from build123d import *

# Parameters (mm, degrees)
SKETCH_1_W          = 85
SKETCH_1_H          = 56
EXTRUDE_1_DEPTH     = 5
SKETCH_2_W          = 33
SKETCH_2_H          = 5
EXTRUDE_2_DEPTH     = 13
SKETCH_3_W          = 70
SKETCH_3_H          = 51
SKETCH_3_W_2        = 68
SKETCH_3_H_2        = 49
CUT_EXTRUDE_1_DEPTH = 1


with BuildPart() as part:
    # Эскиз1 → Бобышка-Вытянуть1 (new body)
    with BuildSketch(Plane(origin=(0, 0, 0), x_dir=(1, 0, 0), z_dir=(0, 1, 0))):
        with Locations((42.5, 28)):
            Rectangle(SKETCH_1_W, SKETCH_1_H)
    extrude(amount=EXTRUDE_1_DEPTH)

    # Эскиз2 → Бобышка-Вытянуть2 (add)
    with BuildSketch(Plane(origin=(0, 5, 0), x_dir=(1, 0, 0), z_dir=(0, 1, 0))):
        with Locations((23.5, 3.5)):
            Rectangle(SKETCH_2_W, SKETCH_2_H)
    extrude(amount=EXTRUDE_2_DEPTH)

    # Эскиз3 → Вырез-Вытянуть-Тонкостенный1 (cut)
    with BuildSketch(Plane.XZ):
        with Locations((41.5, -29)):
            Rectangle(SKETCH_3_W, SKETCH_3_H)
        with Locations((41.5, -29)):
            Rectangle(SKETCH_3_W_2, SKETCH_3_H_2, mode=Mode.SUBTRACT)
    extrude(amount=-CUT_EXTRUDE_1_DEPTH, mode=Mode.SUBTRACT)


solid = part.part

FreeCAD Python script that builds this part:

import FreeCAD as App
import Part
import Sketcher
Q = App.Units.Quantity

doc = App.newDocument("Part")
body = doc.addObject("PartDesign::Body", "Body")

# Sketch on XZ plane
sketch1 = doc.addObject("Sketcher::SketchObject", "Sketch")
body.addObject(sketch1)
sketch1.AttachmentSupport = (doc.XZ_Plane, [""])
sketch1.MapMode = "FlatFace"
sketch1.addGeometry([
    Part.LineSegment(App.Vector(0, -56, 0), App.Vector(0, 0, 0)),
    Part.LineSegment(App.Vector(0, 0, 0), App.Vector(85, 0, 0)),
    Part.LineSegment(App.Vector(85, 0, 0), App.Vector(85, -56, 0)),
    Part.LineSegment(App.Vector(85, -56, 0), App.Vector(0, -56, 0)),
], False)
sketch1.addConstraint([
    Sketcher.Constraint("Coincident", 0, 2, 1, 1),
    Sketcher.Constraint("Coincident", 1, 2, 2, 1),
    Sketcher.Constraint("Coincident", 2, 2, 3, 1),
    Sketcher.Constraint("Coincident", 3, 2, 0, 1),
    Sketcher.Constraint("Vertical", 0),
    Sketcher.Constraint("Horizontal", 1),
    Sketcher.Constraint("Vertical", 2),
    Sketcher.Constraint("Horizontal", 3),
    Sketcher.Constraint("Coincident", 0, 2, -1, 1),
    Sketcher.Constraint("DistanceX", 1, 1, 1, 2, Q("85 mm")),
    Sketcher.Constraint("DistanceY", 0, 1, 0, 2, Q("56 mm")),
])
pad1 = doc.addObject("PartDesign::Pad", "Pad")
body.addObject(pad1)
pad1.Profile = sketch1
pad1.Length = 5
pad1.Reversed = True

# Sketch on XZ plane
sketch2 = doc.addObject("Sketcher::SketchObject", "Sketch001")
body.addObject(sketch2)
sketch2.AttachmentSupport = (doc.XZ_Plane, [""])
sketch2.MapMode = "FlatFace"
sketch2.AttachmentOffset = App.Placement(App.Vector(0, 0, -5), App.Rotation())
sketch2.addGeometry([
    Part.LineSegment(App.Vector(7, -6, 0), App.Vector(7, -1, 0)),
    Part.LineSegment(App.Vector(7, -1, 0), App.Vector(40, -1, 0)),
    Part.LineSegment(App.Vector(40, -1, 0), App.Vector(40, -6, 0)),
    Part.LineSegment(App.Vector(40, -6, 0), App.Vector(7, -6, 0)),
], False)
sketch2.addConstraint([
    Sketcher.Constraint("Coincident", 0, 2, 1, 1),
    Sketcher.Constraint("Coincident", 1, 2, 2, 1),
    Sketcher.Constraint("Coincident", 2, 2, 3, 1),
    Sketcher.Constraint("Coincident", 3, 2, 0, 1),
    Sketcher.Constraint("Vertical", 0),
    Sketcher.Constraint("Horizontal", 1),
    Sketcher.Constraint("Vertical", 2),
    Sketcher.Constraint("Horizontal", 3),
    Sketcher.Constraint("DistanceX", 1, 1, 1, 2, Q("33 mm")),
    Sketcher.Constraint("DistanceY", 0, 1, 0, 2, Q("5 mm")),
    Sketcher.Constraint("DistanceX", -1, 1, 0, 2, Q("7 mm")),
    Sketcher.Constraint("DistanceY", 0, 2, -1, 1, Q("1 mm")),
])
pad2 = doc.addObject("PartDesign::Pad", "Pad001")
body.addObject(pad2)
pad2.Profile = sketch2
pad2.Length = 13
pad2.Reversed = True

# Sketch on XZ plane
sketch3 = doc.addObject("Sketcher::SketchObject", "Sketch002")
body.addObject(sketch3)
sketch3.AttachmentSupport = (doc.XZ_Plane, [""])
sketch3.MapMode = "FlatFace"
sketch3.addGeometry([
    Part.LineSegment(App.Vector(6, -4, 0), App.Vector(6, -54, 0)),  # 0
    Part.LineSegment(App.Vector(6, -54, 0), App.Vector(76, -54, 0)),  # 1
    Part.LineSegment(App.Vector(76, -54, 0), App.Vector(76, -4, 0)),  # 2
    Part.LineSegment(App.Vector(76, -4, 0), App.Vector(6, -4, 0)),  # 3
    Part.LineSegment(App.Vector(76, -54, 0), App.Vector(8, -54, 0)),  # 4
    Part.LineSegment(App.Vector(8, -54, 0), App.Vector(8, -4, 0)),  # 5
    Part.LineSegment(App.Vector(8, -4, 0), App.Vector(76, -4, 0)),  # 6
    Part.LineSegment(App.Vector(76, -4, 0), App.Vector(76, -54, 0)),  # 7
], False)
sketch3.addConstraint([
    Sketcher.Constraint("Coincident", 0, 2, 1, 1),
    Sketcher.Constraint("Coincident", 1, 2, 2, 1),
    Sketcher.Constraint("Coincident", 2, 2, 3, 1),
    Sketcher.Constraint("Coincident", 3, 2, 0, 1),
    Sketcher.Constraint("Coincident", 4, 2, 5, 1),
    Sketcher.Constraint("Coincident", 5, 2, 6, 1),
    Sketcher.Constraint("Coincident", 6, 2, 7, 1),
    Sketcher.Constraint("Coincident", 7, 2, 4, 1),
    Sketcher.Constraint("Vertical", 0),
    Sketcher.Constraint("Horizontal", 1),
    Sketcher.Constraint("Vertical", 2),
    Sketcher.Constraint("Horizontal", 3),
    Sketcher.Constraint("Horizontal", 4),
    Sketcher.Constraint("Vertical", 5),
    Sketcher.Constraint("Horizontal", 6),
    Sketcher.Constraint("Vertical", 7),
    Sketcher.Constraint("DistanceX", 1, 1, 1, 2, Q("70 mm")),
    Sketcher.Constraint("DistanceX", 4, 2, 4, 1, Q("68 mm")),
    Sketcher.Constraint("DistanceY", 0, 2, 0, 1, Q("51 mm")),
    Sketcher.Constraint("DistanceY", 5, 1, 5, 2, Q("49 mm")),
    Sketcher.Constraint("DistanceX", 0, 2, 4, 2, Q("1 mm")),
    Sketcher.Constraint("DistanceY", 0, 2, 4, 2, Q("1 mm")),
    Sketcher.Constraint("DistanceX", -1, 1, 0, 2, Q("6.5 mm")),
    Sketcher.Constraint("DistanceY", 0, 2, -1, 1, Q("54.5 mm")),
])
pocket1 = doc.addObject("PartDesign::Pocket", "Pocket")
body.addObject(pocket1)
pocket1.Profile = sketch3
pocket1.Length = 1

doc.recompute()
